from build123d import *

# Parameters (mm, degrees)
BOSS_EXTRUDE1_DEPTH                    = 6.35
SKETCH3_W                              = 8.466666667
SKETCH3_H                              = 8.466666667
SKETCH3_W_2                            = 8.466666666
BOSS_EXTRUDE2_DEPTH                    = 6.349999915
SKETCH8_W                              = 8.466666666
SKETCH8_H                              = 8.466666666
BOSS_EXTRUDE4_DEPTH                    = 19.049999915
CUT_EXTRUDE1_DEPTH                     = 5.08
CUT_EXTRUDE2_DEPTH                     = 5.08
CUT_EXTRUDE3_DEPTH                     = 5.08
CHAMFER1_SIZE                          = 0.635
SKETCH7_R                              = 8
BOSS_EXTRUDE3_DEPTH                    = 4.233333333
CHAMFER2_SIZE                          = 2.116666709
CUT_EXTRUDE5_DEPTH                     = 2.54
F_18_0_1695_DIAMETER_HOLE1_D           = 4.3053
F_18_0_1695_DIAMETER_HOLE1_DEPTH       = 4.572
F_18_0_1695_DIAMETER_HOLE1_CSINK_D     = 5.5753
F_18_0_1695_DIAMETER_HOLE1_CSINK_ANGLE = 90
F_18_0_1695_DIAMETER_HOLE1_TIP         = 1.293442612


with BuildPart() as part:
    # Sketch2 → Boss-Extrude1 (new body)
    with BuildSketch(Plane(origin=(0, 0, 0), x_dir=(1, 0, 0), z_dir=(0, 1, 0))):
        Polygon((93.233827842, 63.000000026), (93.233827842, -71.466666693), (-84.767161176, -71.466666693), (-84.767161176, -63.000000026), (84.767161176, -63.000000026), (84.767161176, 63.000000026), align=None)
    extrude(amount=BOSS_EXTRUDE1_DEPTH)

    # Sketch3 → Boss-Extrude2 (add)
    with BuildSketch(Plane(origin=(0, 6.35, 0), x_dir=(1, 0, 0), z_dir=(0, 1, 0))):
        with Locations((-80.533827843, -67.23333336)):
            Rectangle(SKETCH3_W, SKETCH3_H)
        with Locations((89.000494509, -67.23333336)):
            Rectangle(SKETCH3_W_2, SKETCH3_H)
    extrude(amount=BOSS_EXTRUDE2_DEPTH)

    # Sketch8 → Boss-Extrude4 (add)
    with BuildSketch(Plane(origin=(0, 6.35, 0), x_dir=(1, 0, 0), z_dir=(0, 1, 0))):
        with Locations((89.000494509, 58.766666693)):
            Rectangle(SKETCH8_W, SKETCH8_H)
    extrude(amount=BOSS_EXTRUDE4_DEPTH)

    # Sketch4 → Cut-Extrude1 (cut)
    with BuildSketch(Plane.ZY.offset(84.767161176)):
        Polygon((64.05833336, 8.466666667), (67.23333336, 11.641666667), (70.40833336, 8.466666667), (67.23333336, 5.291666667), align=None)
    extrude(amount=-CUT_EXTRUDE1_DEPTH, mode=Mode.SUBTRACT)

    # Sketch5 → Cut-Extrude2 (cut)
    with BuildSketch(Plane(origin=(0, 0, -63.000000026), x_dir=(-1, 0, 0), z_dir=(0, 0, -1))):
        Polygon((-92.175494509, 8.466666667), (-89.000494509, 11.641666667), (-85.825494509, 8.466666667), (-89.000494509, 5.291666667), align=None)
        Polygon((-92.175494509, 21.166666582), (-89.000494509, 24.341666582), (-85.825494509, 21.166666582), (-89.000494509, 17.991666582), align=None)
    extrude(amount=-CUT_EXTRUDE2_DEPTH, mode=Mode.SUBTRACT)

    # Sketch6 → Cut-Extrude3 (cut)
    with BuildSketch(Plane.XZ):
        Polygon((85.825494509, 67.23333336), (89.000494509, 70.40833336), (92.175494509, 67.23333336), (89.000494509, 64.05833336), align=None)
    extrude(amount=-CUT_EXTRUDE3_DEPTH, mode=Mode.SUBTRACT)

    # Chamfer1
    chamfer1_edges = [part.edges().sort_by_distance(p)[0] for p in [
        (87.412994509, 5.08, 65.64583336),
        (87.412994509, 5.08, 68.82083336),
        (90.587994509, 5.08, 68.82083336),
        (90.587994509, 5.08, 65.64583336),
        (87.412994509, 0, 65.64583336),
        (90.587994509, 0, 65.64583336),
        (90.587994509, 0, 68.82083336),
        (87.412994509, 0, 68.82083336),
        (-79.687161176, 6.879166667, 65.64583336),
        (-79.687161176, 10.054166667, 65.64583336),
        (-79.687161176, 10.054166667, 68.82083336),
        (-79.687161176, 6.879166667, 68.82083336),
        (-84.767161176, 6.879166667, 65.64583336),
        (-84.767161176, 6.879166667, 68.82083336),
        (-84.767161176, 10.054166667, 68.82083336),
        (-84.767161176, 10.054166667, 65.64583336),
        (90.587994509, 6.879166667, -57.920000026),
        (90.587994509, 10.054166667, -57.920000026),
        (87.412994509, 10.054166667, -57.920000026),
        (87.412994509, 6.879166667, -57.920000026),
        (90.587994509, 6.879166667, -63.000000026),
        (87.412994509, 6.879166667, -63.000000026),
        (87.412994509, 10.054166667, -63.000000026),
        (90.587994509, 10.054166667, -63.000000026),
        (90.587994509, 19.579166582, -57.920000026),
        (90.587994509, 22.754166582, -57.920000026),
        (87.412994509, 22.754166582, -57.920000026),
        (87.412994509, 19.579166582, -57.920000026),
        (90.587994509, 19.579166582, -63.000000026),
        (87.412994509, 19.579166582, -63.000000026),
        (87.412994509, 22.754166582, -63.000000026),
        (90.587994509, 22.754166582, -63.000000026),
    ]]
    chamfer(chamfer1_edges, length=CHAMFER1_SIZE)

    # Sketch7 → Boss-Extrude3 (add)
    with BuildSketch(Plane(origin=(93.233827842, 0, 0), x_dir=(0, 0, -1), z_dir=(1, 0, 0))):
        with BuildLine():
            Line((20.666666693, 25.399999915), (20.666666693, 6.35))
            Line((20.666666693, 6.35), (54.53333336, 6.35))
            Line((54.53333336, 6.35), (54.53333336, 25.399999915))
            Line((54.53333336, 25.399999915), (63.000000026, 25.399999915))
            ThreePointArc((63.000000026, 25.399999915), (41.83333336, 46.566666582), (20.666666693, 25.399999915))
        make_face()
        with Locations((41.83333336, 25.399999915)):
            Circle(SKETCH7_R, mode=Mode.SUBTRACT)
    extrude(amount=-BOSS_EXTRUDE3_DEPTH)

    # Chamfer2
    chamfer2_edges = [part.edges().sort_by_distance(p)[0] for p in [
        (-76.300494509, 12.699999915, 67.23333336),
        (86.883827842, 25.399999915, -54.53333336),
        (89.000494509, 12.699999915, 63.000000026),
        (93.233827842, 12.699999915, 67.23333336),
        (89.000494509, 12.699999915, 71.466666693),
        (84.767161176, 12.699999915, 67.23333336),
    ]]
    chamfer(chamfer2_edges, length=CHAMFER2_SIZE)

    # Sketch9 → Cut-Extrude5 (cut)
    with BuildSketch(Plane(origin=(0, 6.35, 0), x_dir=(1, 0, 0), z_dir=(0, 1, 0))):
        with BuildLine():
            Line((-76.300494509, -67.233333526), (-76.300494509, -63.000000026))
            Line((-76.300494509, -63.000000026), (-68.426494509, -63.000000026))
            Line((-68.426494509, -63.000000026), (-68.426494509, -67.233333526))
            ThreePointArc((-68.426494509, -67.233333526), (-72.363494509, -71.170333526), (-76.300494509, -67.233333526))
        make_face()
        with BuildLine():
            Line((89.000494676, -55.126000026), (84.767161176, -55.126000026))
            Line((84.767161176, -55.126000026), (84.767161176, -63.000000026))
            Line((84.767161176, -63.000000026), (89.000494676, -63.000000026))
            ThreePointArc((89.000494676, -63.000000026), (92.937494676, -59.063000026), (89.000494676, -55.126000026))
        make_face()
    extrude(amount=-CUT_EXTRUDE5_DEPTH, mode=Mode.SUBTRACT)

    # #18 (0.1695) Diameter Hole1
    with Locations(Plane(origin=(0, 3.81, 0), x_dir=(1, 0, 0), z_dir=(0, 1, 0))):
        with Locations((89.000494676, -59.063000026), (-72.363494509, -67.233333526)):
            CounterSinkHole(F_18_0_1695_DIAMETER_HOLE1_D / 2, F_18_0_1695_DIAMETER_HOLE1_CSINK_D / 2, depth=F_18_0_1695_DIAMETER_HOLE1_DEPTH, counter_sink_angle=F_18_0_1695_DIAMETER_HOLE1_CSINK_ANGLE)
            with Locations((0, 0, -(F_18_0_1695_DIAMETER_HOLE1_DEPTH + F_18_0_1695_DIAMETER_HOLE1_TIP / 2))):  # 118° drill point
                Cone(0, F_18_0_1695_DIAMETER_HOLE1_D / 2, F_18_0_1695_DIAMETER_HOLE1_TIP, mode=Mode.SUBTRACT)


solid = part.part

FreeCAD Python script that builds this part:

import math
import FreeCAD as App
import Part
import Sketcher
from FreeCAD import Vector
Q = App.Units.Quantity


def edges_at(feature, points):
    """Names of the edges that pass closest to the given points."""
    edges = feature.Shape.Edges
    near = lambda p: min(range(len(edges)), key=lambda i: edges[i].distToShape(Part.Vertex(*p))[0])
    return sorted({f"Edge{near(p) + 1}" for p in points})


def add_polygon(sketch, points):
    """Adds a closed chain of lines whose ends are joined by coincident constraints."""
    first, n = sketch.GeometryCount, len(points)
    for a, b in zip(points, points[1:] + points[:1]):
        sketch.addGeometry(Part.LineSegment(App.Vector(*a, 0), App.Vector(*b, 0)), False)
    for i in range(n):
        sketch.addConstraint(Sketcher.Constraint("Coincident", first + i, 2, first + (i + 1) % n, 1))

doc = App.newDocument("Part")
body = doc.addObject("PartDesign::Body", "Body")

# Sketch on XZ plane
sketch1 = body.newObject("Sketcher::SketchObject", "Sketch")
sketch1.AttachmentSupport = (doc.getObject("XZ_Plane"), [""])
sketch1.MapMode = "FlatFace"
add_polygon(sketch1, [(93, 71), (93, -63), (85, -63), (85, 63), (-85, 63), (-85, 71)])  # lines 0-5
sketch1.addConstraint(Sketcher.Constraint("Vertical", 0))
sketch1.addConstraint(Sketcher.Constraint("Horizontal", 1))
sketch1.addConstraint(Sketcher.Constraint("Vertical", 2))
sketch1.addConstraint(Sketcher.Constraint("Horizontal", 3))
sketch1.addConstraint(Sketcher.Constraint("Vertical", 4))
sketch1.addConstraint(Sketcher.Constraint("Horizontal", 5))
sketch1.addConstraint(Sketcher.Constraint("Symmetric", 1, 2, 3, 2, -1, 1))
sketch1.addConstraint(Sketcher.Constraint("Equal", 1, 4))
sketch1.addConstraint(Sketcher.Constraint("DistanceY", 2, 1, 2, 2, Q("126 mm")))
sketch1.addConstraint(Sketcher.Constraint("DistanceX", 5, 1, 5, 2, Q("178.000989 mm")))
sketch1.addConstraint(Sketcher.Constraint("DistanceX", 1, 2, 1, 1, Q("8.466667 mm")))
pad1 = body.newObject("PartDesign::Pad", "Pad")
pad1.Profile = sketch1
pad1.Length = Q("0.25 in")
pad1.Reversed = True

# Sketch on XZ plane
sketch2 = body.newObject("Sketcher::SketchObject", "Sketch001")
sketch2.AttachmentSupport = (doc.getObject("XZ_Plane"), [""])
sketch2.MapMode = "FlatFace"
sketch2.AttachmentOffset = App.Placement(Vector(0, 0, -0.25 * 25.4), App.Rotation())
add_polygon(sketch2, [(-85, 63), (-85, 71), (-76, 71), (-76, 63)])  # lines 0-3
add_polygon(sketch2, [(85, 63), (85, 71), (93, 71), (93, 63)])  # lines 4-7
sketch2.addConstraint(Sketcher.Constraint("Vertical", 0))
sketch2.addConstraint(Sketcher.Constraint("Horizontal", 1))
sketch2.addConstraint(Sketcher.Constraint("Vertical", 2))
sketch2.addConstraint(Sketcher.Constraint("Horizontal", 3))
sketch2.addConstraint(Sketcher.Constraint("Vertical", 4))
sketch2.addConstraint(Sketcher.Constraint("Horizontal", 5))
sketch2.addConstraint(Sketcher.Constraint("Vertical", 6))
sketch2.addConstraint(Sketcher.Constraint("Horizontal", 7))
sketch2.addConstraint(Sketcher.Constraint("Symmetric", 0, 2, 4, 2, -2))
sketch2.addConstraint(Sketcher.Constraint("Horizontal", 3, 2, 6, 2))
sketch2.addConstraint(Sketcher.Constraint("Equal", 3, 5))
sketch2.addConstraint(Sketcher.Constraint("Equal", 7, 0))
sketch2.addConstraint(Sketcher.Constraint("DistanceY", -1, 1, 2, 2, Q("63 mm")))
sketch2.addConstraint(Sketcher.Constraint("DistanceX", 1, 1, 1, 2, Q("8.466667 mm")))
sketch2.addConstraint(Sketcher.Constraint("DistanceX", 0, 2, -1, 1, Q("84.767161 mm")))
pad2 = body.newObject("PartDesign::Pad", "Pad001")
pad2.Profile = sketch2
pad2.Length = Q("0.25 in")
pad2.Reversed = True

# Sketch on XZ plane
sketch3 = body.newObject("Sketcher::SketchObject", "Sketch002")
sketch3.AttachmentSupport = (doc.getObject("XZ_Plane"), [""])
sketch3.MapMode = "FlatFace"
sketch3.AttachmentOffset = App.Placement(Vector(0, 0, -0.25 * 25.4), App.Rotation())
add_polygon(sketch3, [(85, -63), (85, -55), (93, -55), (93, -63)])  # lines 0-3
sketch3.addConstraint(Sketcher.Constraint("Vertical", 0))
sketch3.addConstraint(Sketcher.Constraint("Horizontal", 1))
sketch3.addConstraint(Sketcher.Constraint("Vertical", 2))
sketch3.addConstraint(Sketcher.Constraint("Horizontal", 3))
sketch3.addConstraint(Sketcher.Constraint("Equal", 3, 0))
sketch3.addConstraint(Sketcher.Constraint("DistanceY", 2, 2, -1, 1, Q("63 mm")))
sketch3.addConstraint(Sketcher.Constraint("DistanceX", 1, 1, 1, 2, Q("8.466667 mm")))
sketch3.addConstraint(Sketcher.Constraint("DistanceX", -1, 1, 0, 2, Q("84.767161 mm")))
pad3 = body.newObject("PartDesign::Pad", "Pad002")
pad3.Profile = sketch3
pad3.Length = Q("0.75 in")
pad3.Reversed = True

# Sketch on YZ plane
sketch4 = body.newObject("Sketcher::SketchObject", "Sketch003")
sketch4.AttachmentSupport = (doc.getObject("YZ_Plane"), [""])
sketch4.MapMode = "FlatFace"
sketch4.AttachmentOffset = App.Placement(Vector(0, 0, -84.767161), App.Rotation())
add_polygon(sketch4, [(11.6, 67.2), (8.5, 64.1), (5.3, 67.2), (8.5, 70.4)])  # lines 0-3
sketch4.addConstraint(Sketcher.Constraint("Perpendicular", 0, 1))
sketch4.addConstraint(Sketcher.Constraint("Perpendicular", 1, 2))
sketch4.addConstraint(Sketcher.Constraint("Perpendicular", 2, 3))
sketch4.addConstraint(Sketcher.Constraint("Horizontal", 1, 2, 3, 2))
sketch4.addConstraint(Sketcher.Constraint("Vertical", 0, 2, 2, 2))
sketch4.addConstraint(Sketcher.Constraint("DistanceY", 0, 2, 2, 2, Q("0.25 in")))
sketch4.addConstraint(Sketcher.Constraint("DistanceX", -1, 1, 0, 2, Q("8.466667 mm")))
sketch4.addConstraint(Sketcher.Constraint("DistanceY", -1, 1, 0, 2, Q("64.058333 mm")))
pocket1 = body.newObject("PartDesign::Pocket", "Pocket")
pocket1.Profile = sketch4
pocket1.Length = Q("0.2 in")
pocket1.Reversed = True

# Sketch on XY plane
sketch5 = body.newObject("Sketcher::SketchObject", "Sketch004")
sketch5.AttachmentSupport = (doc.getObject("XY_Plane"), [""])
sketch5.MapMode = "FlatFace"
sketch5.AttachmentOffset = App.Placement(Vector(0, 0, -63), App.Rotation())
add_polygon(sketch5, [(89, 11.6), (92.2, 8.5), (89, 5.3), (85.8, 8.5)])  # lines 0-3
add_polygon(sketch5, [(89, 24.3), (92.2, 21.2), (89, 18), (85.8, 21.2)])  # lines 4-7
sketch5.addConstraint(Sketcher.Constraint("Perpendicular", 0, 1))
sketch5.addConstraint(Sketcher.Constraint("Perpendicular", 1, 2))
sketch5.addConstraint(Sketcher.Constraint("Perpendicular", 2, 3))
sketch5.addConstraint(Sketcher.Constraint("Perpendicular", 3, 4))
sketch5.addConstraint(Sketcher.Constraint("Perpendicular", 4, 5))
sketch5.addConstraint(Sketcher.Constraint("Perpendicular", 5, 6))
sketch5.addConstraint(Sketcher.Constraint("Perpendicular", 6, 7))
sketch5.addConstraint(Sketcher.Constraint("Horizontal", 0, 2, 2, 2))
sketch5.addConstraint(Sketcher.Constraint("Horizontal", 4, 2, 6, 2))
sketch5.addConstraint(Sketcher.Constraint("Vertical", 1, 2, 3, 2))
sketch5.addConstraint(Sketcher.Constraint("Vertical", 0, 2, 4, 2))
sketch5.addConstraint(Sketcher.Constraint("Vertical", 3, 2, 5, 2))
sketch5.addConstraint(Sketcher.Constraint("DistanceY", 0, 2, 4, 2, Q("0.5 in")))
sketch5.addConstraint(Sketcher.Constraint("DistanceX", 2, 2, 0, 2, Q("0.25 in")))
sketch5.addConstraint(Sketcher.Constraint("DistanceX", -1, 1, 0, 2, Q("92.175495 mm")))
sketch5.addConstraint(Sketcher.Constraint("DistanceY", -1, 1, 0, 2, Q("8.466667 mm")))
pocket2 = body.newObject("PartDesign::Pocket", "Pocket001")
pocket2.Profile = sketch5
pocket2.Length = Q("0.2 in")
pocket2.Reversed = True

# Sketch on XZ plane
sketch6 = body.newObject("Sketcher::SketchObject", "Sketch005")
sketch6.AttachmentSupport = (doc.getObject("XZ_Plane"), [""])
sketch6.MapMode = "FlatFace"
add_polygon(sketch6, [(89, 70.4), (85.8, 67.2), (89, 64.1), (92.2, 67.2)])  # lines 0-3
sketch6.addConstraint(Sketcher.Constraint("Perpendicular", 0, 1))
sketch6.addConstraint(Sketcher.Constraint("Perpendicular", 1, 2))
sketch6.addConstraint(Sketcher.Constraint("Perpendicular", 2, 3))
sketch6.addConstraint(Sketcher.Constraint("Horizontal", 0, 2, 2, 2))
sketch6.addConstraint(Sketcher.Constraint("Vertical", 1, 2, 3, 2))
sketch6.addConstraint(Sketcher.Constraint("DistanceX", 0, 2, 2, 2, Q("0.25 in")))
sketch6.addConstraint(Sketcher.Constraint("DistanceX", -1, 1, 0, 2, Q("85.825495 mm")))
sketch6.addConstraint(Sketcher.Constraint("DistanceY", -1, 1, 0, 2, Q("67.233333 mm")))
pocket3 = body.newObject("PartDesign::Pocket", "Pocket002")
pocket3.Profile = sketch6
pocket3.Length = Q("0.2 in")
doc.recompute()

chamfer = body.newObject("PartDesign::Chamfer", "Chamfer")
chamfer.Base = (pocket3, edges_at(pocket3, [
    (87.413, 5.08, 65.646),
    (87.413, 5.08, 68.821),
    (90.588, 5.08, 68.821),
    (90.588, 5.08, 65.646),
    (87.413, 0, 65.646),
    (90.588, 0, 65.646),
    (90.588, 0, 68.821),
    (87.413, 0, 68.821),
    (-79.687, 6.879, 65.646),
    (-79.687, 10.054, 65.646),
    (-79.687, 10.054, 68.821),
    (-79.687, 6.879, 68.821),
    (-84.767, 6.879, 65.646),
    (-84.767, 6.879, 68.821),
    (-84.767, 10.054, 68.821),
    (-84.767, 10.054, 65.646),
    (90.588, 6.879, -57.92),
    (90.588, 10.054, -57.92),
    (87.413, 10.054, -57.92),
    (87.413, 6.879, -57.92),
    (90.588, 6.879, -63),
    (87.413, 6.879, -63),
    (87.413, 10.054, -63),
    (90.588, 10.054, -63),
    (90.588, 19.579, -57.92),
    (90.588, 22.754, -57.92),
    (87.413, 22.754, -57.92),
    (87.413, 19.579, -57.92),
    (90.588, 19.579, -63),
    (87.413, 19.579, -63),
    (87.413, 22.754, -63),
    (90.588, 22.754, -63),
]))
chamfer.Size = Q("0.025 in")

# Sketch on YZ plane
sketch7 = body.newObject("Sketcher::SketchObject", "Sketch006")
sketch7.AttachmentSupport = (doc.getObject("YZ_Plane"), [""])
sketch7.MapMode = "FlatFace"
sketch7.AttachmentOffset = App.Placement(Vector(0, 0, 93.233828), App.Rotation())
sketch7.addGeometry(Part.LineSegment(Vector(25, -21, 0), Vector(6, -21, 0)), False)
sketch7.addGeometry(Part.LineSegment(Vector(6, -21, 0), Vector(6, -55, 0)), False)
sketch7.addGeometry(Part.LineSegment(Vector(6, -55, 0), Vector(25, -55, 0)), False)
sketch7.addGeometry(Part.LineSegment(Vector(25, -55, 0), Vector(25, -63, 0)), False)
sketch7.addGeometry(Part.ArcOfCircle(Part.Circle(Vector(25, -42, 0), Vector(0, 0, 1), 21), math.radians(-90), math.radians(90)), False)
sketch7.addGeometry(Part.Circle(Vector(25, -42, 0), Vector(0, 0, 1), 8), False)
sketch7.addConstraint(Sketcher.Constraint("Coincident", 0, 2, 1, 1))
sketch7.addConstraint(Sketcher.Constraint("Coincident", 1, 2, 2, 1))
sketch7.addConstraint(Sketcher.Constraint("Coincident", 2, 2, 3, 1))
sketch7.addConstraint(Sketcher.Constraint("Coincident", 3, 2, 4, 1))
sketch7.addConstraint(Sketcher.Constraint("Tangent", 4, 2, 0, 1))
sketch7.addConstraint(Sketcher.Constraint("Horizontal", 0))
sketch7.addConstraint(Sketcher.Constraint("Vertical", 1))
sketch7.addConstraint(Sketcher.Constraint("Horizontal", 2))
sketch7.addConstraint(Sketcher.Constraint("Vertical", 3))
sketch7.addConstraint(Sketcher.Constraint("Coincident", 5, 3, 4, 3))
sketch7.addConstraint(Sketcher.Constraint("Vertical", 5, 3, 2, 2))
sketch7.addConstraint(Sketcher.Constraint("DistanceX", -1, 1, 4, 3, Q("1 in")))
sketch7.addConstraint(Sketcher.Constraint("DistanceX", 0, 2, 0, 1, Q("0.75 in")))
sketch7.addConstraint(Sketcher.Constraint("DistanceY", 1, 2, 5, 3, Q("0.5 in")))
sketch7.addConstraint(Sketcher.Constraint("Diameter", 5, Q("16 mm")))
sketch7.addConstraint(Sketcher.Constraint("Radius", 4, Q("21.166667 mm")))
sketch7.addConstraint(Sketcher.Constraint("DistanceY", 3, 2, -1, 1, Q("63 mm")))
pad4 = body.newObject("PartDesign::Pad", "Pad003")
pad4.Profile = sketch7
pad4.Length = 4.233333
pad4.Reversed = True
doc.recompute()

chamfer2 = body.newObject("PartDesign::Chamfer", "Chamfer001")
chamfer2.Base = (pad4, edges_at(pad4, [
    (-76.3, 12.7, 67.233),
    (86.884, 25.4, -54.533),
    (89, 12.7, 63),
    (93.234, 12.7, 67.233),
    (89, 12.7, 71.467),
    (84.767, 12.7, 67.233),
]))
chamfer2.Size = 2.116667

# Sketch on XZ plane
sketch8 = body.newObject("Sketcher::SketchObject", "Sketch007")
sketch8.AttachmentSupport = (doc.getObject("XZ_Plane"), [""])
sketch8.MapMode = "FlatFace"
sketch8.AttachmentOffset = App.Placement(Vector(0, 0, -0.25 * 25.4), App.Rotation())
sketch8.addGeometry(Part.LineSegment(Vector(-76.3, 63, 0), Vector(-76.3, 67.2, 0)), False)
sketch8.addGeometry(Part.ArcOfCircle(Part.Circle(Vector(-72.4, 67.2, 0), Vector(0, 0, 1), 3.9), math.radians(0), math.radians(180)), False)
sketch8.addGeometry(Part.LineSegment(Vector(-68.4, 67.2, 0), Vector(-68.4, 63, 0)), False)
sketch8.addGeometry(Part.LineSegment(Vector(-68.4, 63, 0), Vector(-76.3, 63, 0)), False)
sketch8.addGeometry(Part.LineSegment(Vector(89, 55.1, 0), Vector(84.8, 55.1, 0)), False)
sketch8.addGeometry(Part.LineSegment(Vector(84.8, 55.1, 0), Vector(84.8, 63, 0)), False)
sketch8.addGeometry(Part.LineSegment(Vector(84.8, 63, 0), Vector(89, 63, 0)), False)
sketch8.addGeometry(Part.ArcOfCircle(Part.Circle(Vector(89, 59.1, 0), Vector(0, 0, 1), 3.9), math.radians(-90), math.radians(90)), False)
sketch8.addConstraint(Sketcher.Constraint("Tangent", 0, 2, 1, 2))
sketch8.addConstraint(Sketcher.Constraint("Tangent", 1, 1, 2, 1))
sketch8.addConstraint(Sketcher.Constraint("Coincident", 2, 2, 3, 1))
sketch8.addConstraint(Sketcher.Constraint("Coincident", 3, 2, 0, 1))
sketch8.addConstraint(Sketcher.Constraint("Coincident", 4, 2, 5, 1))
sketch8.addConstraint(Sketcher.Constraint("Coincident", 5, 2, 6, 1))
sketch8.addConstraint(Sketcher.Constraint("Tangent", 6, 2, 7, 2))
sketch8.addConstraint(Sketcher.Constraint("Tangent", 7, 1, 4, 1))
sketch8.addConstraint(Sketcher.Constraint("Vertical", 0))
sketch8.addConstraint(Sketcher.Constraint("Vertical", 2))
sketch8.addConstraint(Sketcher.Constraint("Horizontal", 3))
sketch8.addConstraint(Sketcher.Constraint("Horizontal", 4))
sketch8.addConstraint(Sketcher.Constraint("Vertical", 5))
sketch8.addConstraint(Sketcher.Constraint("Horizontal", 6))
sketch8.addConstraint(Sketcher.Constraint("Equal", 1, 7))
sketch8.addConstraint(Sketcher.Constraint("Horizontal", 3, 2, 5, 2))
sketch8.addConstraint(Sketcher.Constraint("Equal", 6, 0))
sketch8.addConstraint(Sketcher.Constraint("Radius", 1, Q("0.155 in")))
sketch8.addConstraint(Sketcher.Constraint("DistanceY", -1, 1, 7, 3, Q("59.063 mm")))
sketch8.addConstraint(Sketcher.Constraint("DistanceX", 4, 2, 4, 1, Q("4.233334 mm")))
sketch8.addConstraint(Sketcher.Constraint("DistanceX", -1, 1, 4, 2, Q("84.767161 mm")))
sketch8.addConstraint(Sketcher.Constraint("DistanceX", 1, 3, 7, 3, Q("161.363989 mm")))
pocket4 = body.newObject("PartDesign::Pocket", "Pocket003")
pocket4.Profile = sketch8
pocket4.Length = Q("0.1 in")
pocket4.Reversed = True

# Sketch on XZ plane
sketch9 = body.newObject("Sketcher::SketchObject", "Sketch008")
sketch9.AttachmentSupport = (doc.getObject("XZ_Plane"), [""])
sketch9.MapMode = "FlatFace"
sketch9.AttachmentOffset = App.Placement(Vector(0, 0, -0.15 * 25.4), App.Rotation())
sketch9.addGeometry(Part.Circle(Vector(89, 59.1, 0), Vector(0, 0, 1), 2.2), False)
sketch9.addGeometry(Part.Circle(Vector(-72.4, 67.2, 0), Vector(0, 0, 1), 2.2), False)
sketch9.addConstraint(Sketcher.Constraint("Equal", 0, 1))
sketch9.addConstraint(Sketcher.Constraint("Diameter", 0, Q("0.1695 in")))
sketch9.addConstraint(Sketcher.Constraint("DistanceY", -1, 1, 0, 3, Q("59.063 mm")))
sketch9.addConstraint(Sketcher.Constraint("DistanceX", 1, 3, 0, 3, Q("161.363989 mm")))
sketch9.addConstraint(Sketcher.Constraint("DistanceX", -1, 1, 0, 3, Q("89.000495 mm")))
sketch9.addConstraint(Sketcher.Constraint("DistanceY", -1, 1, 1, 3, Q("67.233334 mm")))
doc.recompute()
hole = body.newObject("PartDesign::Hole", "Hole")
hole.Profile = sketch9
hole.ThreadType = "None"
hole.Diameter = Q("0.1695 in")
hole.DepthType = "Dimension"
hole.Depth = Q("0.18 in")
hole.DrillPoint = "Angled"
hole.DrillPointAngle = 118
hole.HoleCutType = "Countersink"
hole.HoleCutDiameter = Q("0.2195 in")
hole.HoleCutCountersinkAngle = 90
hole.Reversed = True

doc.recompute()
